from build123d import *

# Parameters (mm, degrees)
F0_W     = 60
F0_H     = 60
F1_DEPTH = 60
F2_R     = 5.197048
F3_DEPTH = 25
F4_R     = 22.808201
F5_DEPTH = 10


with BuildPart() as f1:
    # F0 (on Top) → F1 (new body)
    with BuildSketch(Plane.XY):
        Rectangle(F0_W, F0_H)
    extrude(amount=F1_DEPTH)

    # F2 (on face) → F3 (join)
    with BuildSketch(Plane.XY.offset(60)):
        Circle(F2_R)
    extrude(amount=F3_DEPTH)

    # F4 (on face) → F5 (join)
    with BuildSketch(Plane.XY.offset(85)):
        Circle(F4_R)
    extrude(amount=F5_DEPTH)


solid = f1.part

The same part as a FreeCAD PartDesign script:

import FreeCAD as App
import Part
import Sketcher
from FreeCAD import Vector

doc = App.newDocument("Part")
body = doc.addObject("PartDesign::Body", "Body")

# Sketch on XY plane
sketch1 = body.newObject("Sketcher::SketchObject", "Sketch")
sketch1.AttachmentSupport = (doc.getObject("XY_Plane"), [""])
sketch1.MapMode = "FlatFace"
sketch1.addGeometry([
    Part.LineSegment(Vector(-30, 30, 0), Vector(-30, -30, 0)),
    Part.LineSegment(Vector(-30, -30, 0), Vector(30, -30, 0)),
    Part.LineSegment(Vector(30, -30, 0), Vector(30, 30, 0)),
    Part.LineSegment(Vector(30, 30, 0), Vector(-30, 30, 0)),
], False)
sketch1.addConstraint([
    Sketcher.Constraint("Coincident", 0, 2, 1, 1),
    Sketcher.Constraint("Coincident", 1, 2, 2, 1),
    Sketcher.Constraint("Coincident", 2, 2, 3, 1),
    Sketcher.Constraint("Coincident", 3, 2, 0, 1),
    Sketcher.Constraint("Vertical", 0),
    Sketcher.Constraint("Horizontal", 1),
    Sketcher.Constraint("Vertical", 2),
    Sketcher.Constraint("Horizontal", 3),
    Sketcher.Constraint("Symmetric", 0, 2, 2, 2, -1, 1),
    Sketcher.Constraint("Equal", 3, 0),
    Sketcher.Constraint("DistanceX", 1, 1, 1, 2, 60.0),
])
pad1 = body.newObject("PartDesign::Pad", "Pad")
pad1.Profile = sketch1
pad1.Length = 60

# Sketch on XY plane
sketch2 = body.newObject("Sketcher::SketchObject", "Sketch001")
sketch2.AttachmentSupport = (doc.getObject("XY_Plane"), [""])
sketch2.MapMode = "FlatFace"
sketch2.AttachmentOffset = App.Placement(Vector(0, 0, 60), App.Rotation())
sketch2.addGeometry(Part.Circle(Vector(0, 0, 0), Vector(0, 0, 1), 5), False)
sketch2.addConstraint([
    Sketcher.Constraint("Coincident", 0, 3, -1, 1),
    Sketcher.Constraint("Diameter", 0, 10.394096),
])
pad2 = body.newObject("PartDesign::Pad", "Pad001")
pad2.Profile = sketch2
pad2.Length = 25

# Sketch on XY plane
sketch3 = body.newObject("Sketcher::SketchObject", "Sketch002")
sketch3.AttachmentSupport = (doc.getObject("XY_Plane"), [""])
sketch3.MapMode = "FlatFace"
sketch3.AttachmentOffset = App.Placement(Vector(0, 0, 85), App.Rotation())
sketch3.addGeometry(Part.Circle(Vector(0, 0, 0), Vector(0, 0, 1), 23), False)
sketch3.addConstraint([
    Sketcher.Constraint("Coincident", 0, 3, -1, 1),
    Sketcher.Constraint("Diameter", 0, 45.616402),
])
pad3 = body.newObject("PartDesign::Pad", "Pad002")
pad3.Profile = sketch3
pad3.Length = 10

doc.recompute()
